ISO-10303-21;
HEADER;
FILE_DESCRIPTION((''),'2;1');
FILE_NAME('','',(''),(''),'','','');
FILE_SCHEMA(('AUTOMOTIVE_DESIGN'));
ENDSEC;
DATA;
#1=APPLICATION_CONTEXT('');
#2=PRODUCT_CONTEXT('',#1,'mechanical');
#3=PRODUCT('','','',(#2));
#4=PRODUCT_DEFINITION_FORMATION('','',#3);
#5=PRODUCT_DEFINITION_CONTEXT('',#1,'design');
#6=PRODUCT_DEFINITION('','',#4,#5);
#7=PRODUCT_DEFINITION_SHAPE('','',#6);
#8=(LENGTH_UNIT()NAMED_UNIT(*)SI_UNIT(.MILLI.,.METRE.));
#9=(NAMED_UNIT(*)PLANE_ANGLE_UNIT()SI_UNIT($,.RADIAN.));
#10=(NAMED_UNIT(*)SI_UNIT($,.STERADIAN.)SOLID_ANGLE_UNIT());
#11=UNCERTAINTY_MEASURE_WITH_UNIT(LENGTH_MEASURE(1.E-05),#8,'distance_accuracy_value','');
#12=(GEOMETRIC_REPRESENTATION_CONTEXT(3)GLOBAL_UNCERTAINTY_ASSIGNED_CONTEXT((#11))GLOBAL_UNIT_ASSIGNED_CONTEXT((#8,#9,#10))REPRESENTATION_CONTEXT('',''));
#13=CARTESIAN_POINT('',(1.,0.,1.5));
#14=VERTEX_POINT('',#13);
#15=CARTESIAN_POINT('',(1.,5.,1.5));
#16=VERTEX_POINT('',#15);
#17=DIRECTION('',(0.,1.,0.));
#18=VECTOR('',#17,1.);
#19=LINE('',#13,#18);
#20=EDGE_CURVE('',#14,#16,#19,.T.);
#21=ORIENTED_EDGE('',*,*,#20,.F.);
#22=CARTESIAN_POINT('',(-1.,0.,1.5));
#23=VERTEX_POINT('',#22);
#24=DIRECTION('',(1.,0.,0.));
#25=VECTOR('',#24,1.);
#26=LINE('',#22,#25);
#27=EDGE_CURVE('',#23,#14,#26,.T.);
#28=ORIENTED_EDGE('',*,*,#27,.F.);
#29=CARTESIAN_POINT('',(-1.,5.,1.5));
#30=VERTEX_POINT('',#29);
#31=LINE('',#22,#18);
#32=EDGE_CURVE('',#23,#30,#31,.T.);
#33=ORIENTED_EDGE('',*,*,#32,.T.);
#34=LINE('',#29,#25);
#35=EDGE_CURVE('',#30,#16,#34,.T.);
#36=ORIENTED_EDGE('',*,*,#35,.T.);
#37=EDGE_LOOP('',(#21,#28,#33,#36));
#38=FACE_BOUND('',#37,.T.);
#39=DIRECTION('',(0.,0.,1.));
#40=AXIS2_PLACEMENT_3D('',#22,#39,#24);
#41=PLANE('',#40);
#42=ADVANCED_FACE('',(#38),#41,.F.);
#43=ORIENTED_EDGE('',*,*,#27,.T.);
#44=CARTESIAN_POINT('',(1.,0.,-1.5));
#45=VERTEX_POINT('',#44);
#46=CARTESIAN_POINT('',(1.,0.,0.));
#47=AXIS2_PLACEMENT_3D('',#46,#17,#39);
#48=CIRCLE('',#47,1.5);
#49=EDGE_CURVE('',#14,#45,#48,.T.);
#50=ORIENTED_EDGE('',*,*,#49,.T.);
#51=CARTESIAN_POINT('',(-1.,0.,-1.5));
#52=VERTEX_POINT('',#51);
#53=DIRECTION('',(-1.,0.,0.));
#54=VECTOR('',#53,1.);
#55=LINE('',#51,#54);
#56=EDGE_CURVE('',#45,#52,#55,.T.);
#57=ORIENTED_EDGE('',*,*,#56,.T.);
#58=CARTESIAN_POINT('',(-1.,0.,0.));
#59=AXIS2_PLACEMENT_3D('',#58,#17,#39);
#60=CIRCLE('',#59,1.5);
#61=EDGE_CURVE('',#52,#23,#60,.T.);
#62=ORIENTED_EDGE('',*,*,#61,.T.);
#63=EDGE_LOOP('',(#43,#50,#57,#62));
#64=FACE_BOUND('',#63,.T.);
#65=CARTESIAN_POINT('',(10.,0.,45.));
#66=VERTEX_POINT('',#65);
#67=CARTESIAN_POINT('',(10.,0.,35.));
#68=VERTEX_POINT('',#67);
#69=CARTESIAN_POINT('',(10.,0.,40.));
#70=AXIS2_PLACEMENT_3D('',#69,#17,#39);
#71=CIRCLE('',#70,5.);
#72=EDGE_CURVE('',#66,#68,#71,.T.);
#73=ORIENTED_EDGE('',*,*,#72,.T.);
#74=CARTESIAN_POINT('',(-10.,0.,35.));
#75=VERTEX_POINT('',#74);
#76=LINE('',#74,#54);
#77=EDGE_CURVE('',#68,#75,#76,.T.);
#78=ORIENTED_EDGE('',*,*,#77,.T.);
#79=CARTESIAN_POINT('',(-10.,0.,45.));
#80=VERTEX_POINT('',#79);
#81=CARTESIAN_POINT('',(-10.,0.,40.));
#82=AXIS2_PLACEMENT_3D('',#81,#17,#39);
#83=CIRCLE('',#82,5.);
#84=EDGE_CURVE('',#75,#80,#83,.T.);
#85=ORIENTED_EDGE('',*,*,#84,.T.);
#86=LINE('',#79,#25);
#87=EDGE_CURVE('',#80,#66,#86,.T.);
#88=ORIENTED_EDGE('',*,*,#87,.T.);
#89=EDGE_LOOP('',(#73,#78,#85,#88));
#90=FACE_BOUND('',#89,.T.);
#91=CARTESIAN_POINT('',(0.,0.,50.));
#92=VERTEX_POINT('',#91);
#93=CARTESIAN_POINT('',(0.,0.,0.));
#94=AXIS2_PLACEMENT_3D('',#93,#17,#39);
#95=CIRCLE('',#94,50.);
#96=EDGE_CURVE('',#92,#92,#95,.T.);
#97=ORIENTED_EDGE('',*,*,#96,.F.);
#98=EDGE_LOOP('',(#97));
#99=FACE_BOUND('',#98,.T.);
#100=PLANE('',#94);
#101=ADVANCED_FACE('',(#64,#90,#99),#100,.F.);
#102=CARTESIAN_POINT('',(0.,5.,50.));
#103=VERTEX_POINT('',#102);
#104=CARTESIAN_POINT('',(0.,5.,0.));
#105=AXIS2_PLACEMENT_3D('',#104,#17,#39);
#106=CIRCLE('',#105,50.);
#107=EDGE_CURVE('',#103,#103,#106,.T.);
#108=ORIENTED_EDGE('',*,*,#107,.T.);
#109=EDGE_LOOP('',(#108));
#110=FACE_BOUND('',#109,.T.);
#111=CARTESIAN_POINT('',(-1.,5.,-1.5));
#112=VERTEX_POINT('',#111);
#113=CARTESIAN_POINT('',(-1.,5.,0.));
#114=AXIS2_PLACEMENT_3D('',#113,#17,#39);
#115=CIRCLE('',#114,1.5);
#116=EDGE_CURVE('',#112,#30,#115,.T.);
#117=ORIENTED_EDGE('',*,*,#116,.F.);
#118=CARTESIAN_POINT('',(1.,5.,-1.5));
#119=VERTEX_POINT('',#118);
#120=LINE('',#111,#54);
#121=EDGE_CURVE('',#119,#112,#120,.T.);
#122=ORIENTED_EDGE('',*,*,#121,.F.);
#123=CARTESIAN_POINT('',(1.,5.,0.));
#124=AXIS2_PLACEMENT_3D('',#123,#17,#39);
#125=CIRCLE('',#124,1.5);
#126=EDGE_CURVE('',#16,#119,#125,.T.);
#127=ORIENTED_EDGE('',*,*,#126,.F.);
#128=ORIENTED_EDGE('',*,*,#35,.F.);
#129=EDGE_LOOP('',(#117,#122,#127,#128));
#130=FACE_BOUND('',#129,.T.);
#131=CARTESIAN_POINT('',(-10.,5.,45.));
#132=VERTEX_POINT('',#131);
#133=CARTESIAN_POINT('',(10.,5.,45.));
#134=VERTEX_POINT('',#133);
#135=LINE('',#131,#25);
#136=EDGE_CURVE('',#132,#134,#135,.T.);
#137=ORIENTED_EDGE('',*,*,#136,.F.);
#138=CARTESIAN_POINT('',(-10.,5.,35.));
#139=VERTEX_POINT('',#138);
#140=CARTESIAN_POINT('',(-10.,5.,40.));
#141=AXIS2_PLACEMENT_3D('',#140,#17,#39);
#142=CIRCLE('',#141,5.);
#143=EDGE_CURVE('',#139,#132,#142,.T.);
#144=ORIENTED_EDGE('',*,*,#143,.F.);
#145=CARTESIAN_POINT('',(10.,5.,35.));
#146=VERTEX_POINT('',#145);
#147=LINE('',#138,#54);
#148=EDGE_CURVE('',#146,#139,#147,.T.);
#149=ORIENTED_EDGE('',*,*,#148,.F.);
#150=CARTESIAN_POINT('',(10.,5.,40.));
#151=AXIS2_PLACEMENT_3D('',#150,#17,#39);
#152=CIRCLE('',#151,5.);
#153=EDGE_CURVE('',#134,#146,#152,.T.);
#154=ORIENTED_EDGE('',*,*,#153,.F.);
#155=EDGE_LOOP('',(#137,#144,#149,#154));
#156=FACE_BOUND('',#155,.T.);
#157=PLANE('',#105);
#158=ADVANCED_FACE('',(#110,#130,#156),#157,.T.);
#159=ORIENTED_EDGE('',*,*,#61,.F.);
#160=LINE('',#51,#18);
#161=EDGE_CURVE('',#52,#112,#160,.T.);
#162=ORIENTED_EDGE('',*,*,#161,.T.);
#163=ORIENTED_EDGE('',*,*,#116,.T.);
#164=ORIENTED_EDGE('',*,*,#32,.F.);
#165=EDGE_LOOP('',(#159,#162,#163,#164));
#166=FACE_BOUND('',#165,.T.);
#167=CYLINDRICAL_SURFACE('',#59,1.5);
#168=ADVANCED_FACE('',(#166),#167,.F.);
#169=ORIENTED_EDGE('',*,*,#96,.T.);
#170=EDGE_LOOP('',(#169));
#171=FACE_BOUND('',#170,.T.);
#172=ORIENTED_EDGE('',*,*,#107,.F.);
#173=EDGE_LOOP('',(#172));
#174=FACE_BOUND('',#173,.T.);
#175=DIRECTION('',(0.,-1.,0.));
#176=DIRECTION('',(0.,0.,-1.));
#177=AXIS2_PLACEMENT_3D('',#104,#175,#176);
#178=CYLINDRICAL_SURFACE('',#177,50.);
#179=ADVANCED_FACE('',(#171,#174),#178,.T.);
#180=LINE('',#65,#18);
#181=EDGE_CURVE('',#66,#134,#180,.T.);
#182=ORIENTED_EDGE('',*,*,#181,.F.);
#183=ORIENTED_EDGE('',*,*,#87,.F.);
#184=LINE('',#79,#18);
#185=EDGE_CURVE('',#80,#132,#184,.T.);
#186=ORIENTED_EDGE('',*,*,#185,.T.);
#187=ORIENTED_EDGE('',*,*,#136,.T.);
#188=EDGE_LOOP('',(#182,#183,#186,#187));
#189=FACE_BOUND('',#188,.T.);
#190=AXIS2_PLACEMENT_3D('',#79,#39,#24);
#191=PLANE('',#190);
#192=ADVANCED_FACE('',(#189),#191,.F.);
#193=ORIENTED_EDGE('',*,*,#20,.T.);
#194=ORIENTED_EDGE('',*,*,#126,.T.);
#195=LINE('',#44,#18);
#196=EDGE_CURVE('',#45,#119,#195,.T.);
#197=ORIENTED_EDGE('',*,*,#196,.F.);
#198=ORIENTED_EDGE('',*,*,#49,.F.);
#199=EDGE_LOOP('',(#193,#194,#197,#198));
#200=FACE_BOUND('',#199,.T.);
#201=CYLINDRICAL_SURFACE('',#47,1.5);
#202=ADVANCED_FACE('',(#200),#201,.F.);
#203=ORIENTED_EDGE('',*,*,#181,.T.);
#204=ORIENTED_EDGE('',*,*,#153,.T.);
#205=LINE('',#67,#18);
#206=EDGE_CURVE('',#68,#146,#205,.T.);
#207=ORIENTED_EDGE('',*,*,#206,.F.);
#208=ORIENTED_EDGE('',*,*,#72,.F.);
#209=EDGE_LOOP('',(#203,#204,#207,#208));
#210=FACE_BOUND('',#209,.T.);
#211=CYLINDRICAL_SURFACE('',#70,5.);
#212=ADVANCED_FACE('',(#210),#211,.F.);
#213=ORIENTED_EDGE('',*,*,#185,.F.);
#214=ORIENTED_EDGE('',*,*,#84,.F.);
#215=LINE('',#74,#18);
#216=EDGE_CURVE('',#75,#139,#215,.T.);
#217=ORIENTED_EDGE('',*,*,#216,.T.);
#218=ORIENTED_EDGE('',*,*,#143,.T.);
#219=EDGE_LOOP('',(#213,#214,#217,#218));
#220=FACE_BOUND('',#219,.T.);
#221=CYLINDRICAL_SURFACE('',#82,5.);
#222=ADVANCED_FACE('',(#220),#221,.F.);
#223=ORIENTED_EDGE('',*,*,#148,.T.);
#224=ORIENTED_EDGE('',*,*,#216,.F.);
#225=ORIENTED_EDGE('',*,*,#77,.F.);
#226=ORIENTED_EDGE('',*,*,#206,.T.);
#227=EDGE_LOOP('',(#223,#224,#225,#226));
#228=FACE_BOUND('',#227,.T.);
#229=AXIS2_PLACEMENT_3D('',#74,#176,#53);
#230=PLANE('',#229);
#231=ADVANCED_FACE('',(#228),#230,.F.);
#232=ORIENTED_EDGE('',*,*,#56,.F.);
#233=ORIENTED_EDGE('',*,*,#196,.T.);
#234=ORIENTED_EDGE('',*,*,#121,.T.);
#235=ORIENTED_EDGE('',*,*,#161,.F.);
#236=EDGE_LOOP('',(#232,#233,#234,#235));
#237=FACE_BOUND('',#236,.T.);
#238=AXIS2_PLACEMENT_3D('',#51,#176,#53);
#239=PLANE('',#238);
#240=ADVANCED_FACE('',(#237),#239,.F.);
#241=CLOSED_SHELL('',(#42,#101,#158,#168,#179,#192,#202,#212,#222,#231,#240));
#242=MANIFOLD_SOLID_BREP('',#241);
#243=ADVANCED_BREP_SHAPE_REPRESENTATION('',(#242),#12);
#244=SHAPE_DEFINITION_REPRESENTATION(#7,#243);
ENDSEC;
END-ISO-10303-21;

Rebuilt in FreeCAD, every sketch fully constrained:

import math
import FreeCAD as App
import Part
import Sketcher

V = App.Vector

doc = App.newDocument("Part")
body = doc.addObject("PartDesign::Body", "Body")

# Sketch on XZ plane
sketch1 = body.newObject("Sketcher::SketchObject", "Sketch")
sketch1.AttachmentSupport = (doc.getObject("XZ_Plane"), [""])
sketch1.MapMode = "FlatFace"
sketch1.addGeometry(Part.Circle(V(0, 0, 0), V(0, 0, 1), 50), False)
sketch1.addConstraint([
    Sketcher.Constraint("Coincident", 0, 3, -1, 1),
    Sketcher.Constraint("Diameter", 0, 100.0),
])
pad1 = body.newObject("PartDesign::Pad", "Pad")
pad1.Profile = sketch1
pad1.Length = 5
pad1.Reversed = True

# Sketch on XZ plane
sketch2 = body.newObject("Sketcher::SketchObject", "Sketch001")
sketch2.AttachmentSupport = (doc.getObject("XZ_Plane"), [""])
sketch2.MapMode = "FlatFace"
sketch2.AttachmentOffset = App.Placement(V(0, 0, -5), App.Rotation())
sketch2.addGeometry([
    Part.LineSegment(V(1, -1.5, 0), V(-1, -1.5, 0)),
    Part.ArcOfCircle(Part.Circle(V(-1, 0, 0), V(0, 0, 1), 1.5), math.radians(90), math.radians(270)),
    Part.LineSegment(V(-1, 1.5, 0), V(1, 1.5, 0)),
    Part.ArcOfCircle(Part.Circle(V(1, 0, 0), V(0, 0, 1), 1.5), math.radians(-90), math.radians(90)),
], False)
sketch2.addConstraint([
    Sketcher.Constraint("Tangent", 0, 2, 1, 2),
    Sketcher.Constraint("Tangent", 1, 1, 2, 1),
    Sketcher.Constraint("Tangent", 2, 2, 3, 2),
    Sketcher.Constraint("Tangent", 3, 1, 0, 1),
    Sketcher.Constraint("Horizontal", 0),
    Sketcher.Constraint("Horizontal", 2),
    Sketcher.Constraint("Symmetric", 1, 3, 3, 3, -1, 1),
    Sketcher.Constraint("Radius", 1, 1.5),
    Sketcher.Constraint("DistanceX", 0, 2, 0, 1, 2.0),
])
pocket1 = body.newObject("PartDesign::Pocket", "Pocket")
pocket1.Profile = sketch2
pocket1.Type = "ThroughAll"
pocket1.Reversed = True

# Sketch on XZ plane
sketch3 = body.newObject("Sketcher::SketchObject", "Sketch002")
sketch3.AttachmentSupport = (doc.getObject("XZ_Plane"), [""])
sketch3.MapMode = "FlatFace"
sketch3.AttachmentOffset = App.Placement(V(0, 0, -5), App.Rotation())
sketch3.addGeometry([
    Part.LineSegment(V(10, 35, 0), V(-10, 35, 0)),
    Part.ArcOfCircle(Part.Circle(V(-10, 40, 0), V(0, 0, 1), 5), math.radians(90), math.radians(270)),
    Part.LineSegment(V(-10, 45, 0), V(10, 45, 0)),
    Part.ArcOfCircle(Part.Circle(V(10, 40, 0), V(0, 0, 1), 5), math.radians(-90), math.radians(90)),
], False)
sketch3.addConstraint([
    Sketcher.Constraint("Tangent", 0, 2, 1, 2),
    Sketcher.Constraint("Tangent", 1, 1, 2, 1),
    Sketcher.Constraint("Tangent", 2, 2, 3, 2),
    Sketcher.Constraint("Tangent", 3, 1, 0, 1),
    Sketcher.Constraint("Horizontal", 0),
    Sketcher.Constraint("Horizontal", 2),
    Sketcher.Constraint("Radius", 1, 5.0),
    Sketcher.Constraint("DistanceX", 0, 2, 0, 1, 20.0),
    Sketcher.Constraint("DistanceX", 1, 3, -1, 1, 10.0),
    Sketcher.Constraint("DistanceY", -1, 1, 1, 3, 40.0),
])
pocket2 = body.newObject("PartDesign::Pocket", "Pocket001")
pocket2.Profile = sketch3
pocket2.Type = "ThroughAll"
pocket2.Reversed = True

doc.recompute()
